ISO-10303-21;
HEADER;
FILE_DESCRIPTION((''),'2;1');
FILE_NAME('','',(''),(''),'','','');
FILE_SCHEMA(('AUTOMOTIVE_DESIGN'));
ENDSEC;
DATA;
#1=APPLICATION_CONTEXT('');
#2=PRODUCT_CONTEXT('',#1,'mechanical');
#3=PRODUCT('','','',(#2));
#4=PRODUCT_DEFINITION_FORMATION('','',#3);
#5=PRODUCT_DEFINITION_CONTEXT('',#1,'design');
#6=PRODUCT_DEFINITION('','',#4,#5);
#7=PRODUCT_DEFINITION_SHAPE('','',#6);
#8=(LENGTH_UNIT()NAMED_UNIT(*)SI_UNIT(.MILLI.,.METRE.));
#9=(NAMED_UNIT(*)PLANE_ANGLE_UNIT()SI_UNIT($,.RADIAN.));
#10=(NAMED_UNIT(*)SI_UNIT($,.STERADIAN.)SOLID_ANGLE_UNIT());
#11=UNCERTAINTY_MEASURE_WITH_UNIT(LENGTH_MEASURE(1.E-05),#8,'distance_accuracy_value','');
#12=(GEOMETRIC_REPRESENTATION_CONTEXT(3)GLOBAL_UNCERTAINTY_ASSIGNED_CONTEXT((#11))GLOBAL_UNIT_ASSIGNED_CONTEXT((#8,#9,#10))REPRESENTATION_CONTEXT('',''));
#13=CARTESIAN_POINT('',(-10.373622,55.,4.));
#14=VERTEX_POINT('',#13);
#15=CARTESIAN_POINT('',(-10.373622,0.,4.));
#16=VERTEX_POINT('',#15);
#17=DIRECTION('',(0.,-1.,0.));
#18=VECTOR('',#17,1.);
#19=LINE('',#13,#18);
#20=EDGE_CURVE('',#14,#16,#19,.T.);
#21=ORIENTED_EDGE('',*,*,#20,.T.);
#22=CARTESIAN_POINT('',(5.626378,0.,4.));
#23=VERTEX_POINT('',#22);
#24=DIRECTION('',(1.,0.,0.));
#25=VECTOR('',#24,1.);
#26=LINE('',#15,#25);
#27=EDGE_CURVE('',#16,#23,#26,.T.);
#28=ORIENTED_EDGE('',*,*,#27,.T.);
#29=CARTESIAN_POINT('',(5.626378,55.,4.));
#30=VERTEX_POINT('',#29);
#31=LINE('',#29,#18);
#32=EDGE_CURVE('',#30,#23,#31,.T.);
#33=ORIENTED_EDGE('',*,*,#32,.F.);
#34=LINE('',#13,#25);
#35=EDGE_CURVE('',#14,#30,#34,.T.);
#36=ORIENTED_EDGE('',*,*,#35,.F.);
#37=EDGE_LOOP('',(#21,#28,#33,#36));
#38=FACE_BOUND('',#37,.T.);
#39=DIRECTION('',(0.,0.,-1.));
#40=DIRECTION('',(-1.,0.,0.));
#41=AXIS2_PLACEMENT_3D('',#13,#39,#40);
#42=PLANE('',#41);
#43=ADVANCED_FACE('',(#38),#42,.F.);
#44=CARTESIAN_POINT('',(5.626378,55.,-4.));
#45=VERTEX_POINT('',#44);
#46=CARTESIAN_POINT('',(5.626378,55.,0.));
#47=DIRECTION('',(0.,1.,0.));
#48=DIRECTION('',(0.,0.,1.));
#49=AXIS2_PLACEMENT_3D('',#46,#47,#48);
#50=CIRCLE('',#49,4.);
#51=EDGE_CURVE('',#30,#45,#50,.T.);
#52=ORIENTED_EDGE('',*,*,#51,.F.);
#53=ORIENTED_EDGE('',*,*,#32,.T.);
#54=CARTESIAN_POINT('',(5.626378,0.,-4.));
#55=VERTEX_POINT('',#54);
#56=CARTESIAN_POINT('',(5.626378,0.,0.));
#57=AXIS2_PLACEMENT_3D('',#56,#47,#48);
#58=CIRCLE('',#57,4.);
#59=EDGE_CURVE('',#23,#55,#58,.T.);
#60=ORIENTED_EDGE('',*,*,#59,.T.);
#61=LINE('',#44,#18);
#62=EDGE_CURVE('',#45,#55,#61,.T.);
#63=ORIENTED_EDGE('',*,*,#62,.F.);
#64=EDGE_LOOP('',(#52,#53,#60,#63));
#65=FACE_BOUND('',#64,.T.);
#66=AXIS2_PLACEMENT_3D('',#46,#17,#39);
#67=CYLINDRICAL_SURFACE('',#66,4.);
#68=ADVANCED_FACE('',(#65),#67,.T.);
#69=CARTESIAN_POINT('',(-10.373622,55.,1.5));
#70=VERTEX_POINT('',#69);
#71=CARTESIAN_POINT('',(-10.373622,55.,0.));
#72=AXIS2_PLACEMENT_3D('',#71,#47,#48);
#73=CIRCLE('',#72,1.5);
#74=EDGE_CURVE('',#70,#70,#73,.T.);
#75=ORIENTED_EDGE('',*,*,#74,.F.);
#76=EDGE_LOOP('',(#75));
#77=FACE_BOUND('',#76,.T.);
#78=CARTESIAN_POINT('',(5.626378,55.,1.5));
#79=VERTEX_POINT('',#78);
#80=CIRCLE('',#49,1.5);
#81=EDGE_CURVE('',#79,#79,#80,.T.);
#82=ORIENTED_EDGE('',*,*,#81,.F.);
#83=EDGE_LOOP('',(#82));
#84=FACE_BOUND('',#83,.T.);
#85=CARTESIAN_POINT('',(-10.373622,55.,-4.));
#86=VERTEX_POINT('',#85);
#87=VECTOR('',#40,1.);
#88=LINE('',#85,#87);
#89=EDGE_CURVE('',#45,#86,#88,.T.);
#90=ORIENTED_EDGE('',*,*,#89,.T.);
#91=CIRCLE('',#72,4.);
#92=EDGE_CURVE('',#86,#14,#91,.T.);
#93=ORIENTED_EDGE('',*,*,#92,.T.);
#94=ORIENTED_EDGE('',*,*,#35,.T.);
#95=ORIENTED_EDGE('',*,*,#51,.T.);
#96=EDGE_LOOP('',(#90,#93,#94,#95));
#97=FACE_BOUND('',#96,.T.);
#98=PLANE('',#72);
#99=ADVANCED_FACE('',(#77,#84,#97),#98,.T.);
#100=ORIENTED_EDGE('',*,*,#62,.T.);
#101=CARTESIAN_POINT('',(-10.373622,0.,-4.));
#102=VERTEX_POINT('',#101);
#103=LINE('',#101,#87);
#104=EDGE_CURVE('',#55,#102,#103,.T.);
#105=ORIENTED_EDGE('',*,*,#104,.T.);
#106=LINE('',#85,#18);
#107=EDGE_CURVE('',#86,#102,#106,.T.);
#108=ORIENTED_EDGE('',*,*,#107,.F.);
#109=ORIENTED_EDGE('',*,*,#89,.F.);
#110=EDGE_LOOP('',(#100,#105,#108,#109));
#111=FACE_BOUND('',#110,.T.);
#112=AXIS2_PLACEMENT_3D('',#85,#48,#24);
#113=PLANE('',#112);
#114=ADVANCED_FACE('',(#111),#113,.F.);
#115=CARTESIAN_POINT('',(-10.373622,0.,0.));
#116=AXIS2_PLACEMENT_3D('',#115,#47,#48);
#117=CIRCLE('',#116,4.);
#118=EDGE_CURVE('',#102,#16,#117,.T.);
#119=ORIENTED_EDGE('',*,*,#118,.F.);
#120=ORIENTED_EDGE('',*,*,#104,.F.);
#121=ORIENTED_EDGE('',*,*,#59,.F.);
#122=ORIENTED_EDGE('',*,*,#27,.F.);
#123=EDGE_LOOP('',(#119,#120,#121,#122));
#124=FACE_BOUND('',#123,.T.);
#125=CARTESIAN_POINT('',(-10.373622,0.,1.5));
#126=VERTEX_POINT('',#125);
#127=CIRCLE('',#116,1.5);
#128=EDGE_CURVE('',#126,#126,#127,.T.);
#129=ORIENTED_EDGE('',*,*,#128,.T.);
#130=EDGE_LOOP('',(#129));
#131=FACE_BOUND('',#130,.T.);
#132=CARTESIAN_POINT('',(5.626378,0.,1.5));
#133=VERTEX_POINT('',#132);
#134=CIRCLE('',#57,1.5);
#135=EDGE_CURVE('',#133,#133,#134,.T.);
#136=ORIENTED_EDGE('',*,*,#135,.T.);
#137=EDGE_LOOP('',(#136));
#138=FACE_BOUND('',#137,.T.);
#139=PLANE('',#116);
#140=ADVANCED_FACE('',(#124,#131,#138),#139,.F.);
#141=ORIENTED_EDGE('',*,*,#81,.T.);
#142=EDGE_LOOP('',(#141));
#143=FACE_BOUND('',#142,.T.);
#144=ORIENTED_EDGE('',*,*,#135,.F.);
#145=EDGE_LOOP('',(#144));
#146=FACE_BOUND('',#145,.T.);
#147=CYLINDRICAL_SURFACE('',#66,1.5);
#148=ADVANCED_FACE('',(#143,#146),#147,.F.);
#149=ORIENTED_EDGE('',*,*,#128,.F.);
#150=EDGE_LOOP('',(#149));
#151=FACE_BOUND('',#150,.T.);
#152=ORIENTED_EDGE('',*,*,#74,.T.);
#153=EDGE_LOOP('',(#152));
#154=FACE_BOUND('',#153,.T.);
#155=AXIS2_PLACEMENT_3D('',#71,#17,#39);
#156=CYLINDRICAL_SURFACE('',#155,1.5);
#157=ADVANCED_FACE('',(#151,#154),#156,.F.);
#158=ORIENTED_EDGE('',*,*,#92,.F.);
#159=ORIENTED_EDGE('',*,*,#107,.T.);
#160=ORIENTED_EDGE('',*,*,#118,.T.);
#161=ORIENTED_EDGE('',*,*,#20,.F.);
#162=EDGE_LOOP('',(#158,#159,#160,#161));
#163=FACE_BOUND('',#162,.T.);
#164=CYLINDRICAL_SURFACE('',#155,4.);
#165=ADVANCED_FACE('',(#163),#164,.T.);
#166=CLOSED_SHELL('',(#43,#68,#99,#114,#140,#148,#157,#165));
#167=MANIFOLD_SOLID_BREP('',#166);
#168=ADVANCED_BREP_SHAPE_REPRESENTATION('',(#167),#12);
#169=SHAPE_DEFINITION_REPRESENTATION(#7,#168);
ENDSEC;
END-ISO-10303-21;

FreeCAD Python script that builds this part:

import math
import FreeCAD as App
import Part
import Sketcher
from FreeCAD import Vector
Q = App.Units.Quantity

doc = App.newDocument("Part")
body = doc.addObject("PartDesign::Body", "Body")

# Sketch on XZ plane
sketch1 = body.newObject("Sketcher::SketchObject", "Sketch")
sketch1.AttachmentSupport = (doc.getObject("XZ_Plane"), [""])
sketch1.MapMode = "FlatFace"
sketch1.addGeometry(Part.LineSegment(Vector(5.6, -4, 0), Vector(-10.4, -4, 0)), False)
sketch1.addGeometry(Part.ArcOfCircle(Part.Circle(Vector(-10.4, 0, 0), Vector(0, 0, 1), 4), math.radians(90), math.radians(270)), False)
sketch1.addGeometry(Part.LineSegment(Vector(-10.4, 4, 0), Vector(5.6, 4, 0)), False)
sketch1.addGeometry(Part.ArcOfCircle(Part.Circle(Vector(5.6, 0, 0), Vector(0, 0, 1), 4), math.radians(-90), math.radians(90)), False)
sketch1.addGeometry(Part.Circle(Vector(5.6, 0, 0), Vector(0, 0, 1), 1.5), False)
sketch1.addGeometry(Part.Circle(Vector(-10.4, 0, 0), Vector(0, 0, 1), 1.5), False)
sketch1.addConstraint(Sketcher.Constraint("Tangent", 0, 2, 1, 2))
sketch1.addConstraint(Sketcher.Constraint("Tangent", 1, 1, 2, 1))
sketch1.addConstraint(Sketcher.Constraint("Tangent", 2, 2, 3, 2))
sketch1.addConstraint(Sketcher.Constraint("Tangent", 3, 1, 0, 1))
sketch1.addConstraint(Sketcher.Constraint("Horizontal", 0))
sketch1.addConstraint(Sketcher.Constraint("Horizontal", 2))
sketch1.addConstraint(Sketcher.Constraint("Coincident", 4, 3, 3, 3))
sketch1.addConstraint(Sketcher.Constraint("Coincident", 5, 3, 1, 3))
sketch1.addConstraint(Sketcher.Constraint("Equal", 4, 5))
sketch1.addConstraint(Sketcher.Constraint("PointOnObject", 1, 3, -1))
sketch1.addConstraint(Sketcher.Constraint("Diameter", 4, Q("3 mm")))
sketch1.addConstraint(Sketcher.Constraint("Radius", 1, Q("4 mm")))
sketch1.addConstraint(Sketcher.Constraint("DistanceX", 0, 2, 0, 1, Q("16 mm")))
sketch1.addConstraint(Sketcher.Constraint("DistanceX", 1, 3, -1, 1, Q("10.373622 mm")))
pad1 = body.newObject("PartDesign::Pad", "Pad")
pad1.Profile = sketch1
pad1.Length = 55
pad1.Reversed = True

doc.recompute()
